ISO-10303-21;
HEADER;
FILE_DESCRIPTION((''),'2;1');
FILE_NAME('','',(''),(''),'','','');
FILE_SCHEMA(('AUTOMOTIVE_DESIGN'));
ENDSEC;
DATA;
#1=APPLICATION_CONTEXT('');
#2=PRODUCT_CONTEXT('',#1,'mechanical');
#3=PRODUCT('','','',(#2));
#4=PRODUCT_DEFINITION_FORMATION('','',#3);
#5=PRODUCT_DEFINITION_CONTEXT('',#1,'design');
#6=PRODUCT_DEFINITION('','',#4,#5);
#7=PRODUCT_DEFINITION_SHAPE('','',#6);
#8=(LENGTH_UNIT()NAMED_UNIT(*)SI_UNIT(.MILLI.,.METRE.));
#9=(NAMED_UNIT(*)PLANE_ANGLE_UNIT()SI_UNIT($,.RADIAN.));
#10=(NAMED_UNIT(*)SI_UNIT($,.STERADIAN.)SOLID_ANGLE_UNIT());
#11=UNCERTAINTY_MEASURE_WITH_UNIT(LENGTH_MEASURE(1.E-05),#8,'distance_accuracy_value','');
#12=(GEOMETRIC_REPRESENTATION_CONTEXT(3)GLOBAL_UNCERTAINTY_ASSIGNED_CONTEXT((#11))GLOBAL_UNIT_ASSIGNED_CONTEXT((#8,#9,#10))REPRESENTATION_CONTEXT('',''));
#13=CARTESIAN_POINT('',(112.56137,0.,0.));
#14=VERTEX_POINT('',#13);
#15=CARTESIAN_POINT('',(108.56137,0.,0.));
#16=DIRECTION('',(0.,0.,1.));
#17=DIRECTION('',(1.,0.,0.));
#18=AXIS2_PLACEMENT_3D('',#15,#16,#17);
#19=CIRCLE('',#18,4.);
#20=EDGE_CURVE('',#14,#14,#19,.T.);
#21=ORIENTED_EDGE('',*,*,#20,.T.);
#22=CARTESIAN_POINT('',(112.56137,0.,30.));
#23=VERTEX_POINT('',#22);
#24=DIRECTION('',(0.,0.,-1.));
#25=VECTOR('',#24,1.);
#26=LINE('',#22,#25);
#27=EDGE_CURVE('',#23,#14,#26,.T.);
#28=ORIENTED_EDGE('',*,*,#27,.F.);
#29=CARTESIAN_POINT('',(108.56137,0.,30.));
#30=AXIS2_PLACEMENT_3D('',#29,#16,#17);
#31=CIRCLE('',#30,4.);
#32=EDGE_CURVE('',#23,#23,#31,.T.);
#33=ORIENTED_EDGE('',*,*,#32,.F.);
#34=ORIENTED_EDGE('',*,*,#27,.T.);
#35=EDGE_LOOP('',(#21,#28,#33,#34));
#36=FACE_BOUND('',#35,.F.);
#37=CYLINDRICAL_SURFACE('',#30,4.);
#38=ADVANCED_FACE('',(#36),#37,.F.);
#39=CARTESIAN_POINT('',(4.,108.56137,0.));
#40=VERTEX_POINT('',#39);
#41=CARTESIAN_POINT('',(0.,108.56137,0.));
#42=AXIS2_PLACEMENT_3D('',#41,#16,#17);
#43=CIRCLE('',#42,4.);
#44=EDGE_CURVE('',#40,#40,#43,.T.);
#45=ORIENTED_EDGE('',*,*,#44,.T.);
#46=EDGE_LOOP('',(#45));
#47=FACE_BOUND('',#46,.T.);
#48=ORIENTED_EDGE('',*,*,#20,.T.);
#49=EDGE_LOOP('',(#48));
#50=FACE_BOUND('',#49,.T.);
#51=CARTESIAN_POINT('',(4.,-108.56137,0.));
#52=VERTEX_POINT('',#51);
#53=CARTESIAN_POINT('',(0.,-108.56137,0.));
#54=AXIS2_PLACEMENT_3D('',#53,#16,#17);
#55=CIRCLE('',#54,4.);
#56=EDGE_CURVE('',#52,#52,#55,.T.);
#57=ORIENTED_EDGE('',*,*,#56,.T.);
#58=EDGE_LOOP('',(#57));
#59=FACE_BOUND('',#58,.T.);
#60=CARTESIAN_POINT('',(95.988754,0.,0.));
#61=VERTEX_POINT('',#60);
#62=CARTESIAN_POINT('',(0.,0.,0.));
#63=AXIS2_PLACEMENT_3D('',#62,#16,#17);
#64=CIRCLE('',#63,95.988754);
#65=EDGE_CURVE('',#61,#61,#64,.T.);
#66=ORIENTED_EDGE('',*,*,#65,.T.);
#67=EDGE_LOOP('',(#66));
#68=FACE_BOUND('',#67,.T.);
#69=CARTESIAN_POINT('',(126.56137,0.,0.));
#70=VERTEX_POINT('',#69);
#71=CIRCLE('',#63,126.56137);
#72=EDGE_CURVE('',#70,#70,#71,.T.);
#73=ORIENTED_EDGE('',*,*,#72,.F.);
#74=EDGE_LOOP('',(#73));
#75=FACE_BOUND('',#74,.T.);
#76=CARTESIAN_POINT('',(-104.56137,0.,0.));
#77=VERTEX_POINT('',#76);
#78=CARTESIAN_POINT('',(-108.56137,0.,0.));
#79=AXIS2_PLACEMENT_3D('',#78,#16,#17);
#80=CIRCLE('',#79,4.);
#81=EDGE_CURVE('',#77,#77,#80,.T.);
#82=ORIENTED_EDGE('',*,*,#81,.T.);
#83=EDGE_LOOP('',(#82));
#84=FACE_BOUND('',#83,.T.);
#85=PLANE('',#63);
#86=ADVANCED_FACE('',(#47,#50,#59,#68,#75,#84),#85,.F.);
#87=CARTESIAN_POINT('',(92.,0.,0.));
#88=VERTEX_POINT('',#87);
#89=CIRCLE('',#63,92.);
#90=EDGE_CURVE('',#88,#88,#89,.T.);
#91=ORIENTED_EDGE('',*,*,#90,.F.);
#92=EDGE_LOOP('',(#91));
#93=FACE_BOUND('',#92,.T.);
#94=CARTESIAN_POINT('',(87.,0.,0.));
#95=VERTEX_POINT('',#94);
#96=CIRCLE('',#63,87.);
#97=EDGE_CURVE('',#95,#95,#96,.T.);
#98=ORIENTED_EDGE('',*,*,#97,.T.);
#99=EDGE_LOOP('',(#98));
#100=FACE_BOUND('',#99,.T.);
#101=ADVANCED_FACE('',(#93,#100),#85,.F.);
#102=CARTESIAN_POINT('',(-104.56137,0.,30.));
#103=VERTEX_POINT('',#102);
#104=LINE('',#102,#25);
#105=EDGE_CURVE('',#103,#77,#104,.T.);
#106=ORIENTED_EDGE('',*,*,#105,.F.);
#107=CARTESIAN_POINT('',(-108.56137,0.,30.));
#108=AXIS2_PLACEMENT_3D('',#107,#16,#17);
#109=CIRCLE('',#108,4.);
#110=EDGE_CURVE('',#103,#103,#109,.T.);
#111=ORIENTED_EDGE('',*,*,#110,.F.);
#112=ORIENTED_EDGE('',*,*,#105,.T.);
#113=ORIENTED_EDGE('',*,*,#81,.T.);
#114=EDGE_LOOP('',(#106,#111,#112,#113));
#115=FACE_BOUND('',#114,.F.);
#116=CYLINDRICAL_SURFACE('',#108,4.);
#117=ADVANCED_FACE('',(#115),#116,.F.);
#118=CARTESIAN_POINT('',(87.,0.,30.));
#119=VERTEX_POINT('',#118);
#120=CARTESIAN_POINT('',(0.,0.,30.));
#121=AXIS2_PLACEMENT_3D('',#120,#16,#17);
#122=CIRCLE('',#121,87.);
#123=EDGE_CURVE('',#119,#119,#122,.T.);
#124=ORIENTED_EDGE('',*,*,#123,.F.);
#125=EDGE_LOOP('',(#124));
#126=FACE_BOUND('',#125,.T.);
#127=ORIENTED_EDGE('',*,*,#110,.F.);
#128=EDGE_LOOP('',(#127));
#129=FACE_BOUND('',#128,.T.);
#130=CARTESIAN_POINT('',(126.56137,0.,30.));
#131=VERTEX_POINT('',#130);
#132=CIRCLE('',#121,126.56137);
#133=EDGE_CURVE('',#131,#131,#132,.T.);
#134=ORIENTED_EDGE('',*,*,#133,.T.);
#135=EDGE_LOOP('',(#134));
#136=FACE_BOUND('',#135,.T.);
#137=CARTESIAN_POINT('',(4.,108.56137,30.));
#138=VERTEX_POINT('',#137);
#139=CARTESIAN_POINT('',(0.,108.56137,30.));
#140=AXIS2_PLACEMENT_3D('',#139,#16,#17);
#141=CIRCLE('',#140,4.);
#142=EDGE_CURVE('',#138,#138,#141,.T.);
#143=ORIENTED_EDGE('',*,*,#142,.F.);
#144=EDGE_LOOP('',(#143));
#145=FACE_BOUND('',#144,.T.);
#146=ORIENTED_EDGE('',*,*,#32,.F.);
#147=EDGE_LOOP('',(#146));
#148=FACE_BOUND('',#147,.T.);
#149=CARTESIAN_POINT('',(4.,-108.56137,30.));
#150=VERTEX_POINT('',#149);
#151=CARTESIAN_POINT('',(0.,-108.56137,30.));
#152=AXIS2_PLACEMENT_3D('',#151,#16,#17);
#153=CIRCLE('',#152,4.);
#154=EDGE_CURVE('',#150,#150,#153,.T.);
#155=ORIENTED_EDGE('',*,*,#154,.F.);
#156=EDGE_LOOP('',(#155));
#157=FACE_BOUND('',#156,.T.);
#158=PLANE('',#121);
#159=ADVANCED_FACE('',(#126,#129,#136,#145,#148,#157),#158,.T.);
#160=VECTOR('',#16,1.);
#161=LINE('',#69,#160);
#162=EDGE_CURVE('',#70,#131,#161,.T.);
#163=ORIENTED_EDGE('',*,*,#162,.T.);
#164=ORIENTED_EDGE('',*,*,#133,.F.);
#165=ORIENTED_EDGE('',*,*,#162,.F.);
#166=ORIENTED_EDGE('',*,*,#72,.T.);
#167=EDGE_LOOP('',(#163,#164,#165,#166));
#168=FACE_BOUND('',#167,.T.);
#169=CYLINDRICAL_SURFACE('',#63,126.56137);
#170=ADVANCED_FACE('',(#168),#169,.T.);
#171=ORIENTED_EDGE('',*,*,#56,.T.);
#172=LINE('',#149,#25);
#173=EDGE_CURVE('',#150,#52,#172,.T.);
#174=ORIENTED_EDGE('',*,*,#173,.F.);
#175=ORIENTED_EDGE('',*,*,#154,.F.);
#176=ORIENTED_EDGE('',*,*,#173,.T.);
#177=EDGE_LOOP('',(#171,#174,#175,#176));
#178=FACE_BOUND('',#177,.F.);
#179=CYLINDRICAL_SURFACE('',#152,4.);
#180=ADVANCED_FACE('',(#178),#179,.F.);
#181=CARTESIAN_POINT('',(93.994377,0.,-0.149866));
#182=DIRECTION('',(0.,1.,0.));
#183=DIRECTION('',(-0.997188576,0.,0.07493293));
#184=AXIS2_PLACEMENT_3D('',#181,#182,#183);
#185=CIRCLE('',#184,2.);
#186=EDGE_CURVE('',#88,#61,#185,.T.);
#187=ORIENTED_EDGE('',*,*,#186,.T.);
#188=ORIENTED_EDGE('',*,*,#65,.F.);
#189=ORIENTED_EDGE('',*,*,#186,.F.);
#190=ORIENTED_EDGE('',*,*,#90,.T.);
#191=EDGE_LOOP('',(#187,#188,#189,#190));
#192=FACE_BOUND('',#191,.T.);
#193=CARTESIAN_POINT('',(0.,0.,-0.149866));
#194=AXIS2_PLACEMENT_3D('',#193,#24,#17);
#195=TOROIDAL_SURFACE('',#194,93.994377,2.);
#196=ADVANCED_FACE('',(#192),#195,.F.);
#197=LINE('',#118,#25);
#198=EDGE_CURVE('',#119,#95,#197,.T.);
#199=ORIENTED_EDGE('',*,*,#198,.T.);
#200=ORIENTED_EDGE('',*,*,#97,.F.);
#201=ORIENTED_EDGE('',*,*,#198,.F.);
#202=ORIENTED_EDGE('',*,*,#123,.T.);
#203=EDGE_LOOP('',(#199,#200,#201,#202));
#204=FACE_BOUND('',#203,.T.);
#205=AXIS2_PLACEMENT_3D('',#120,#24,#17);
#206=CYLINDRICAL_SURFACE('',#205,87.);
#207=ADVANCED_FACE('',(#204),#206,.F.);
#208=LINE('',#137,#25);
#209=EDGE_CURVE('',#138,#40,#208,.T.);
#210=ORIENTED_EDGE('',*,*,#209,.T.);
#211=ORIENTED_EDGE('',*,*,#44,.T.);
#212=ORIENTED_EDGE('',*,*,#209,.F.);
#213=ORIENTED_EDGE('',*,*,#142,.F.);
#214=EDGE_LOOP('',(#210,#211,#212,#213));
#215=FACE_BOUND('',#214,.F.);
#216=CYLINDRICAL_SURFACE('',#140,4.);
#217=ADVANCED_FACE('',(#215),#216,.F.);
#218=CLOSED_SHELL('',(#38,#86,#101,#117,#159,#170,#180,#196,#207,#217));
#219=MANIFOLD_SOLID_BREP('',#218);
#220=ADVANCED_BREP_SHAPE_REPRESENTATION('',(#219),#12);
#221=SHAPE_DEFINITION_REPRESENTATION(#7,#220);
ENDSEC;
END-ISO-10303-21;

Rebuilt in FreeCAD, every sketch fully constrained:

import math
import FreeCAD as App
import Part
import Sketcher
from FreeCAD import Vector

doc = App.newDocument("Part")
params = doc.addObject("Spreadsheet::Sheet", "Params")
for row, (alias, value) in enumerate([
    ("sketch1_radius", "2 mm"),
    ("sketch1_width", "5 mm"),
    ("sketch1_height", "30 mm"),
    ("revolution_angle", "360 deg"),
    ("sketch2_diameter", "8 mm"),
], start=1):
    params.set(f"A{row}", alias)
    params.set(f"B{row}", "=" + value)
    params.setAlias(f"B{row}", alias)

body = doc.addObject("PartDesign::Body", "Body")

sketch1 = body.newObject("Sketcher::SketchObject", "Sketch")
sketch1.AttachmentSupport = (doc.getObject("XZ_Plane"), [""])
sketch1.MapMode = "FlatFace"
sketch1.addGeometry(Part.LineSegment(Vector(87, 30, 0), Vector(87, 0, 0)), False)
sketch1.addGeometry(Part.LineSegment(Vector(87, 0, 0), Vector(92, 0, 0)), False)
sketch1.addGeometry(Part.ArcOfCircle(Part.Circle(Vector(94, -0.1, 0), Vector(0, 0, 1), 2), math.radians(4), math.radians(176)), False)
sketch1.addGeometry(Part.LineSegment(Vector(96, 0, 0), Vector(126.6, 0, 0)), False)
sketch1.addGeometry(Part.LineSegment(Vector(126.6, 0, 0), Vector(126.6, 30, 0)), False)
sketch1.addGeometry(Part.LineSegment(Vector(126.6, 30, 0), Vector(87, 30, 0)), False)
sketch1.addConstraint(Sketcher.Constraint("Coincident", 0, 2, 1, 1))
sketch1.addConstraint(Sketcher.Constraint("Coincident", 1, 2, 2, 2))
sketch1.addConstraint(Sketcher.Constraint("Coincident", 2, 1, 3, 1))
sketch1.addConstraint(Sketcher.Constraint("Coincident", 3, 2, 4, 1))
sketch1.addConstraint(Sketcher.Constraint("Coincident", 4, 2, 5, 1))
sketch1.addConstraint(Sketcher.Constraint("Coincident", 5, 2, 0, 1))
sketch1.addConstraint(Sketcher.Constraint("Vertical", 0))
sketch1.addConstraint(Sketcher.Constraint("Horizontal", 1))
sketch1.addConstraint(Sketcher.Constraint("Horizontal", 3))
sketch1.addConstraint(Sketcher.Constraint("Vertical", 4))
sketch1.addConstraint(Sketcher.Constraint("Horizontal", 5))
sketch1.addConstraint(Sketcher.Constraint("PointOnObject", 0, 2, -1))
sketch1.addConstraint(Sketcher.Constraint("PointOnObject", 2, 1, -1))
sketch1.addConstraint(Sketcher.Constraint("Radius", 2, 2.0))
sketch1.addConstraint(Sketcher.Constraint("DistanceX", 1, 1, 1, 2, 5.0))
sketch1.addConstraint(Sketcher.Constraint("DistanceY", 0, 2, 0, 1, 30.0))
sketch1.addConstraint(Sketcher.Constraint("DistanceX", -1, 1, 0, 2, 87.0))
sketch1.addConstraint(Sketcher.Constraint("DistanceX", 5, 2, 5, 1, 39.56137))
sketch1.addConstraint(Sketcher.Constraint("DistanceX", 3, 1, 3, 2, 30.572616))
sketch1.setExpression("Constraints[13]", "Params.sketch1_radius")
sketch1.setExpression("Constraints[14]", "Params.sketch1_width")
sketch1.setExpression("Constraints[15]", "Params.sketch1_height")
revolution = body.newObject("PartDesign::Revolution", "Revolution")
revolution.Profile = sketch1
revolution.ReferenceAxis = (sketch1, ["V_Axis"])
revolution.setExpression("Angle", "Params.revolution_angle")

sketch2 = body.newObject("Sketcher::SketchObject", "Sketch001")
sketch2.AttachmentSupport = (doc.getObject("XY_Plane"), [""])
sketch2.MapMode = "FlatFace"
sketch2.AttachmentOffset = App.Placement(Vector(0, 0, 30), App.Rotation())
sketch2.addGeometry(Part.Circle(Vector(108.6, 0, 0), Vector(0, 0, 1), 4), False)
sketch2.addGeometry(Part.Circle(Vector(0, 108.6, 0), Vector(0, 0, 1), 4), False)
sketch2.addGeometry(Part.Circle(Vector(-108.6, 0, 0), Vector(0, 0, 1), 4), False)
sketch2.addGeometry(Part.Circle(Vector(0, -108.6, 0), Vector(0, 0, 1), 4), False)
sketch2.addConstraint(Sketcher.Constraint("Equal", 0, 1))
sketch2.addConstraint(Sketcher.Constraint("Equal", 1, 2))
sketch2.addConstraint(Sketcher.Constraint("Equal", 2, 3))
sketch2.addConstraint(Sketcher.Constraint("Symmetric", 0, 3, 2, 3, -1, 1))
sketch2.addConstraint(Sketcher.Constraint("Symmetric", 1, 3, 3, 3, -1, 1))
sketch2.addConstraint(Sketcher.Constraint("PointOnObject", 0, 3, -1))
sketch2.addConstraint(Sketcher.Constraint("PointOnObject", 1, 3, -2))
sketch2.addConstraint(Sketcher.Constraint("Diameter", 0, 8.0))
sketch2.addConstraint(Sketcher.Constraint("DistanceX", -1, 1, 0, 3, 108.56137))
sketch2.addConstraint(Sketcher.Constraint("DistanceY", -1, 1, 1, 3, 108.56137))
sketch2.setExpression("Constraints[7]", "Params.sketch2_diameter")
pocket1 = body.newObject("PartDesign::Pocket", "Pocket")
pocket1.Profile = sketch2
pocket1.Type = "ThroughAll"

doc.recompute()
